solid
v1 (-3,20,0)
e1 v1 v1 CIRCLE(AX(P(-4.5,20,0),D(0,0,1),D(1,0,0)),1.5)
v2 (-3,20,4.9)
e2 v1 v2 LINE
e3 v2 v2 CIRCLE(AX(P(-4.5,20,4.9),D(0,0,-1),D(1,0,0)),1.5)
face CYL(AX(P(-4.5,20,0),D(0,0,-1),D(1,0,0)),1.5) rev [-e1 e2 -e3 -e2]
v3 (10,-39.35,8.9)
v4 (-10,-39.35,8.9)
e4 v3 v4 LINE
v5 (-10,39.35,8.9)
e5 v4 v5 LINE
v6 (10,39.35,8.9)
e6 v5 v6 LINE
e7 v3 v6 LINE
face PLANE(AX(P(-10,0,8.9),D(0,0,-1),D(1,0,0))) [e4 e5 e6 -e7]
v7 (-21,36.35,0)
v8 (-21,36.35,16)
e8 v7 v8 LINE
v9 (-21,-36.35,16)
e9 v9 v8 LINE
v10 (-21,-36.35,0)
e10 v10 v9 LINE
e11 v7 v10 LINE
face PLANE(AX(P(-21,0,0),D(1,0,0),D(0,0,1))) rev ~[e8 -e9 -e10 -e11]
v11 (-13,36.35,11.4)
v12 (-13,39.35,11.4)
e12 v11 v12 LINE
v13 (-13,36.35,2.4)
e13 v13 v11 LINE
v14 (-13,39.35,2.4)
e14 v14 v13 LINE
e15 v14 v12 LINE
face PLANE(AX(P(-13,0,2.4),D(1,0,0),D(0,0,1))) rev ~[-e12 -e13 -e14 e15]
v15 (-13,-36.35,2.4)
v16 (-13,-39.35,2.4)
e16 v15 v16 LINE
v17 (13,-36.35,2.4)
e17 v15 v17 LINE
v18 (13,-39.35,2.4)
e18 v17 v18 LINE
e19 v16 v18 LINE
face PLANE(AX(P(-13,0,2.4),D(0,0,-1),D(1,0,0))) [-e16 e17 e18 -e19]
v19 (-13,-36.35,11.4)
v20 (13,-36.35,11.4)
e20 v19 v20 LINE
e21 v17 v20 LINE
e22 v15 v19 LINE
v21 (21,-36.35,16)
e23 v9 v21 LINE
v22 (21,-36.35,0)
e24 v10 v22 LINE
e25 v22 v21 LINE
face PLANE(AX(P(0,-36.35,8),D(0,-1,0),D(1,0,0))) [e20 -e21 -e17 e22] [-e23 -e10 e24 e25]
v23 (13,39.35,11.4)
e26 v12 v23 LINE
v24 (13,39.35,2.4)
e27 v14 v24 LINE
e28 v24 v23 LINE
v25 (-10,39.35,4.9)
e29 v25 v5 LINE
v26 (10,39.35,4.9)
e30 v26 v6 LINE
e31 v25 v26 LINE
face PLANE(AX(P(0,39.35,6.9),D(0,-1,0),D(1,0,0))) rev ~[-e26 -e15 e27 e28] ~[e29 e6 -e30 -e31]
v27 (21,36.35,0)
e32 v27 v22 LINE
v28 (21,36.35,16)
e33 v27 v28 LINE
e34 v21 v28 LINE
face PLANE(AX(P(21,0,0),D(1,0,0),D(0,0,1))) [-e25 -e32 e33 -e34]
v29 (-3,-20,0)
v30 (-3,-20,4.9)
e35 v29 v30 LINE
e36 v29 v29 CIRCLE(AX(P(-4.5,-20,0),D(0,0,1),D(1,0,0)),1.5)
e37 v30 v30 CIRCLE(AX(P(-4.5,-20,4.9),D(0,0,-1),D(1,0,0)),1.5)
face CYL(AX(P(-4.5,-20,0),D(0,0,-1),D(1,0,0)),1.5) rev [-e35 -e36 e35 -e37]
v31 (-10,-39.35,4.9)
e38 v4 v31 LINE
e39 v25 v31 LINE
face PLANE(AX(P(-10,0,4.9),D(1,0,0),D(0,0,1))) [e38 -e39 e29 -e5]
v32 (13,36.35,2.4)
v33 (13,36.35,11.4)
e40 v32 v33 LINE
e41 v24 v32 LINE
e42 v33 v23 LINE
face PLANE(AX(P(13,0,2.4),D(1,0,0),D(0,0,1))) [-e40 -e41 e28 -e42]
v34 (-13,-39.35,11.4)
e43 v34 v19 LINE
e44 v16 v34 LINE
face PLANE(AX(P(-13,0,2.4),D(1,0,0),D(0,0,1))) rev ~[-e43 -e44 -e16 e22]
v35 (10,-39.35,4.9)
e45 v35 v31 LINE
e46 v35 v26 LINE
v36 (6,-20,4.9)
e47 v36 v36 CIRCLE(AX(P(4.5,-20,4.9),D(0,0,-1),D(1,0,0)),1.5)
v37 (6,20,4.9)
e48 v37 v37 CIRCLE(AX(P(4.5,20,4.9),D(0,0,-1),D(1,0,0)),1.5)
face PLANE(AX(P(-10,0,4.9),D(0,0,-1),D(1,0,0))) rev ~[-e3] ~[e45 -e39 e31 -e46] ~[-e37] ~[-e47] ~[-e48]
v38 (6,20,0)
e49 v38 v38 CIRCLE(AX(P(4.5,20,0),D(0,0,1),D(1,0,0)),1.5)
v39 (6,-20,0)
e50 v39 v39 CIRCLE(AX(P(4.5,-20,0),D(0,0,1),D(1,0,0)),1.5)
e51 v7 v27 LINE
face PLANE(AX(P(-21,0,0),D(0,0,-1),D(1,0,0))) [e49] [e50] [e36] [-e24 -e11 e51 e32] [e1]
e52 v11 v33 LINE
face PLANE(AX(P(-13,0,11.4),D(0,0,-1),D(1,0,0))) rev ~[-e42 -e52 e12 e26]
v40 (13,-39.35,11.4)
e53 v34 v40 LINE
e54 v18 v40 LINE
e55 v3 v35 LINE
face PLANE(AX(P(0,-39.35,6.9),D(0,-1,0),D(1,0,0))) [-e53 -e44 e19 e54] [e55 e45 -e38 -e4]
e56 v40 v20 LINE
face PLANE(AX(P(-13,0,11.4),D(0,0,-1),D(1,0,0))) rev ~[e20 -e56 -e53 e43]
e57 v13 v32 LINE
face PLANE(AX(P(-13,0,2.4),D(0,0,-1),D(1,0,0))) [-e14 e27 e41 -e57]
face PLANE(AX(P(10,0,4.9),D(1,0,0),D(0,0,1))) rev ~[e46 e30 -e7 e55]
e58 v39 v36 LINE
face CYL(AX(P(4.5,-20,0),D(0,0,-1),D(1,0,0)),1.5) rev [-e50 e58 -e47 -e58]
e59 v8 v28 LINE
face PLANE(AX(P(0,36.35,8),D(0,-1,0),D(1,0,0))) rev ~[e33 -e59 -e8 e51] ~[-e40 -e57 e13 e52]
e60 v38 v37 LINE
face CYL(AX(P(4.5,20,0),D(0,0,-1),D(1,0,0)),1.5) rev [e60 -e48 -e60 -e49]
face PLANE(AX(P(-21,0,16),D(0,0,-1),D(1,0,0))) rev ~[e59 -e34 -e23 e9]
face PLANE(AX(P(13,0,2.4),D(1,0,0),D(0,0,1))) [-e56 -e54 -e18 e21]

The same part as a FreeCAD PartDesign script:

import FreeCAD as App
import Part
import Sketcher

doc = App.newDocument("Part")
body = doc.addObject("PartDesign::Body", "Body")

sketch1 = body.newObject("Sketcher::SketchObject", "Sketch")
sketch1.AttachmentSupport = (doc.getObject("XZ_Plane"), [""])
sketch1.MapMode = "FlatFace"
sketch1.addGeometry([
    Part.LineSegment(App.Vector(-21, 16, 0), App.Vector(-21, 0, 0)),
    Part.LineSegment(App.Vector(-21, 0, 0), App.Vector(21, 0, 0)),
    Part.LineSegment(App.Vector(21, 0, 0), App.Vector(21, 16, 0)),
    Part.LineSegment(App.Vector(21, 16, 0), App.Vector(-21, 16, 0)),
], False)
sketch1.addConstraint([
    Sketcher.Constraint("Coincident", 0, 2, 1, 1),
    Sketcher.Constraint("Coincident", 1, 2, 2, 1),
    Sketcher.Constraint("Coincident", 2, 2, 3, 1),
    Sketcher.Constraint("Coincident", 3, 2, 0, 1),
    Sketcher.Constraint("Vertical", 0),
    Sketcher.Constraint("Horizontal", 1),
    Sketcher.Constraint("Vertical", 2),
    Sketcher.Constraint("Horizontal", 3),
    Sketcher.Constraint("Symmetric", 0, 2, 1, 2, -1, 1),
    Sketcher.Constraint("DistanceX", 1, 1, 1, 2, 42.0),
    Sketcher.Constraint("DistanceY", 0, 2, 0, 1, 16.0),
])
pad1 = body.newObject("PartDesign::Pad", "Pad")
pad1.Profile = sketch1
pad1.Length = 72.7
pad1.Midplane = True

sketch2 = body.newObject("Sketcher::SketchObject", "Sketch001")
sketch2.AttachmentSupport = (doc.getObject("XZ_Plane"), [""])
sketch2.MapMode = "FlatFace"
sketch2.addGeometry([
    Part.LineSegment(App.Vector(-13, 11, 0), App.Vector(-13, 2, 0)),
    Part.LineSegment(App.Vector(-13, 2, 0), App.Vector(13, 2, 0)),
    Part.LineSegment(App.Vector(13, 2, 0), App.Vector(13, 11, 0)),
    Part.LineSegment(App.Vector(13, 11, 0), App.Vector(-13, 11, 0)),
], False)
sketch2.addConstraint([
    Sketcher.Constraint("Coincident", 0, 2, 1, 1),
    Sketcher.Constraint("Coincident", 1, 2, 2, 1),
    Sketcher.Constraint("Coincident", 2, 2, 3, 1),
    Sketcher.Constraint("Coincident", 3, 2, 0, 1),
    Sketcher.Constraint("Vertical", 0),
    Sketcher.Constraint("Horizontal", 1),
    Sketcher.Constraint("Vertical", 2),
    Sketcher.Constraint("Horizontal", 3),
    Sketcher.Constraint("DistanceX", 1, 1, 1, 2, 26.0),
    Sketcher.Constraint("DistanceY", 0, 2, 0, 1, 9.0),
    Sketcher.Constraint("DistanceX", 0, 2, -1, 1, 13.0),
    Sketcher.Constraint("DistanceY", -1, 1, 0, 2, 2.4),
])
pad2 = body.newObject("PartDesign::Pad", "Pad001")
pad2.Profile = sketch2
pad2.Length = 78.7
pad2.Midplane = True

sketch3 = body.newObject("Sketcher::SketchObject", "Sketch002")
sketch3.AttachmentSupport = (doc.getObject("XZ_Plane"), [""])
sketch3.MapMode = "FlatFace"
sketch3.addGeometry([
    Part.LineSegment(App.Vector(-10, 8.9, 0), App.Vector(-10, 4.9, 0)),
    Part.LineSegment(App.Vector(-10, 4.9, 0), App.Vector(10, 4.9, 0)),
    Part.LineSegment(App.Vector(10, 4.9, 0), App.Vector(10, 8.9, 0)),
    Part.LineSegment(App.Vector(10, 8.9, 0), App.Vector(-10, 8.9, 0)),
], False)
sketch3.addConstraint([
    Sketcher.Constraint("Coincident", 0, 2, 1, 1),
    Sketcher.Constraint("Coincident", 1, 2, 2, 1),
    Sketcher.Constraint("Coincident", 2, 2, 3, 1),
    Sketcher.Constraint("Coincident", 3, 2, 0, 1),
    Sketcher.Constraint("Vertical", 0),
    Sketcher.Constraint("Horizontal", 1),
    Sketcher.Constraint("Vertical", 2),
    Sketcher.Constraint("Horizontal", 3),
    Sketcher.Constraint("DistanceX", 1, 1, 1, 2, 20.0),
    Sketcher.Constraint("DistanceY", 0, 2, 0, 1, 4.0),
    Sketcher.Constraint("DistanceX", 0, 2, -1, 1, 10.0),
    Sketcher.Constraint("DistanceY", -1, 1, 0, 2, 4.9),
])
pocket1 = body.newObject("PartDesign::Pocket", "Pocket")
pocket1.Profile = sketch3
pocket1.Type = "ThroughAll"
pocket1.Midplane = True

sketch4 = body.newObject("Sketcher::SketchObject", "Sketch003")
sketch4.AttachmentSupport = (doc.getObject("XY_Plane"), [""])
sketch4.MapMode = "FlatFace"
sketch4.addGeometry([
    Part.Circle(App.Vector(-4.5, 20, 0), App.Vector(0, 0, 1), 1.5),
    Part.Circle(App.Vector(4.5, 20, 0), App.Vector(0, 0, 1), 1.5),
    Part.Circle(App.Vector(-4.5, -20, 0), App.Vector(0, 0, 1), 1.5),
    Part.Circle(App.Vector(4.5, -20, 0), App.Vector(0, 0, 1), 1.5),
], False)
sketch4.addConstraint([
    Sketcher.Constraint("Equal", 0, 1),
    Sketcher.Constraint("Equal", 1, 2),
    Sketcher.Constraint("Equal", 2, 3),
    Sketcher.Constraint("Symmetric", 1, 3, 2, 3, -1, 1),
    Sketcher.Constraint("Symmetric", 0, 3, 3, 3, -1, 1),
    Sketcher.Constraint("Symmetric", 0, 3, 1, 3, -2),
    Sketcher.Constraint("Diameter", 0, 3.0),
    Sketcher.Constraint("DistanceY", -1, 1, 0, 3, 20.0),
    Sketcher.Constraint("DistanceX", 0, 3, 1, 3, 9.0),
])
pocket2 = body.newObject("PartDesign::Pocket", "Pocket001")
pocket2.Profile = sketch4
pocket2.Length = 5
pocket2.Reversed = True

doc.recompute()
